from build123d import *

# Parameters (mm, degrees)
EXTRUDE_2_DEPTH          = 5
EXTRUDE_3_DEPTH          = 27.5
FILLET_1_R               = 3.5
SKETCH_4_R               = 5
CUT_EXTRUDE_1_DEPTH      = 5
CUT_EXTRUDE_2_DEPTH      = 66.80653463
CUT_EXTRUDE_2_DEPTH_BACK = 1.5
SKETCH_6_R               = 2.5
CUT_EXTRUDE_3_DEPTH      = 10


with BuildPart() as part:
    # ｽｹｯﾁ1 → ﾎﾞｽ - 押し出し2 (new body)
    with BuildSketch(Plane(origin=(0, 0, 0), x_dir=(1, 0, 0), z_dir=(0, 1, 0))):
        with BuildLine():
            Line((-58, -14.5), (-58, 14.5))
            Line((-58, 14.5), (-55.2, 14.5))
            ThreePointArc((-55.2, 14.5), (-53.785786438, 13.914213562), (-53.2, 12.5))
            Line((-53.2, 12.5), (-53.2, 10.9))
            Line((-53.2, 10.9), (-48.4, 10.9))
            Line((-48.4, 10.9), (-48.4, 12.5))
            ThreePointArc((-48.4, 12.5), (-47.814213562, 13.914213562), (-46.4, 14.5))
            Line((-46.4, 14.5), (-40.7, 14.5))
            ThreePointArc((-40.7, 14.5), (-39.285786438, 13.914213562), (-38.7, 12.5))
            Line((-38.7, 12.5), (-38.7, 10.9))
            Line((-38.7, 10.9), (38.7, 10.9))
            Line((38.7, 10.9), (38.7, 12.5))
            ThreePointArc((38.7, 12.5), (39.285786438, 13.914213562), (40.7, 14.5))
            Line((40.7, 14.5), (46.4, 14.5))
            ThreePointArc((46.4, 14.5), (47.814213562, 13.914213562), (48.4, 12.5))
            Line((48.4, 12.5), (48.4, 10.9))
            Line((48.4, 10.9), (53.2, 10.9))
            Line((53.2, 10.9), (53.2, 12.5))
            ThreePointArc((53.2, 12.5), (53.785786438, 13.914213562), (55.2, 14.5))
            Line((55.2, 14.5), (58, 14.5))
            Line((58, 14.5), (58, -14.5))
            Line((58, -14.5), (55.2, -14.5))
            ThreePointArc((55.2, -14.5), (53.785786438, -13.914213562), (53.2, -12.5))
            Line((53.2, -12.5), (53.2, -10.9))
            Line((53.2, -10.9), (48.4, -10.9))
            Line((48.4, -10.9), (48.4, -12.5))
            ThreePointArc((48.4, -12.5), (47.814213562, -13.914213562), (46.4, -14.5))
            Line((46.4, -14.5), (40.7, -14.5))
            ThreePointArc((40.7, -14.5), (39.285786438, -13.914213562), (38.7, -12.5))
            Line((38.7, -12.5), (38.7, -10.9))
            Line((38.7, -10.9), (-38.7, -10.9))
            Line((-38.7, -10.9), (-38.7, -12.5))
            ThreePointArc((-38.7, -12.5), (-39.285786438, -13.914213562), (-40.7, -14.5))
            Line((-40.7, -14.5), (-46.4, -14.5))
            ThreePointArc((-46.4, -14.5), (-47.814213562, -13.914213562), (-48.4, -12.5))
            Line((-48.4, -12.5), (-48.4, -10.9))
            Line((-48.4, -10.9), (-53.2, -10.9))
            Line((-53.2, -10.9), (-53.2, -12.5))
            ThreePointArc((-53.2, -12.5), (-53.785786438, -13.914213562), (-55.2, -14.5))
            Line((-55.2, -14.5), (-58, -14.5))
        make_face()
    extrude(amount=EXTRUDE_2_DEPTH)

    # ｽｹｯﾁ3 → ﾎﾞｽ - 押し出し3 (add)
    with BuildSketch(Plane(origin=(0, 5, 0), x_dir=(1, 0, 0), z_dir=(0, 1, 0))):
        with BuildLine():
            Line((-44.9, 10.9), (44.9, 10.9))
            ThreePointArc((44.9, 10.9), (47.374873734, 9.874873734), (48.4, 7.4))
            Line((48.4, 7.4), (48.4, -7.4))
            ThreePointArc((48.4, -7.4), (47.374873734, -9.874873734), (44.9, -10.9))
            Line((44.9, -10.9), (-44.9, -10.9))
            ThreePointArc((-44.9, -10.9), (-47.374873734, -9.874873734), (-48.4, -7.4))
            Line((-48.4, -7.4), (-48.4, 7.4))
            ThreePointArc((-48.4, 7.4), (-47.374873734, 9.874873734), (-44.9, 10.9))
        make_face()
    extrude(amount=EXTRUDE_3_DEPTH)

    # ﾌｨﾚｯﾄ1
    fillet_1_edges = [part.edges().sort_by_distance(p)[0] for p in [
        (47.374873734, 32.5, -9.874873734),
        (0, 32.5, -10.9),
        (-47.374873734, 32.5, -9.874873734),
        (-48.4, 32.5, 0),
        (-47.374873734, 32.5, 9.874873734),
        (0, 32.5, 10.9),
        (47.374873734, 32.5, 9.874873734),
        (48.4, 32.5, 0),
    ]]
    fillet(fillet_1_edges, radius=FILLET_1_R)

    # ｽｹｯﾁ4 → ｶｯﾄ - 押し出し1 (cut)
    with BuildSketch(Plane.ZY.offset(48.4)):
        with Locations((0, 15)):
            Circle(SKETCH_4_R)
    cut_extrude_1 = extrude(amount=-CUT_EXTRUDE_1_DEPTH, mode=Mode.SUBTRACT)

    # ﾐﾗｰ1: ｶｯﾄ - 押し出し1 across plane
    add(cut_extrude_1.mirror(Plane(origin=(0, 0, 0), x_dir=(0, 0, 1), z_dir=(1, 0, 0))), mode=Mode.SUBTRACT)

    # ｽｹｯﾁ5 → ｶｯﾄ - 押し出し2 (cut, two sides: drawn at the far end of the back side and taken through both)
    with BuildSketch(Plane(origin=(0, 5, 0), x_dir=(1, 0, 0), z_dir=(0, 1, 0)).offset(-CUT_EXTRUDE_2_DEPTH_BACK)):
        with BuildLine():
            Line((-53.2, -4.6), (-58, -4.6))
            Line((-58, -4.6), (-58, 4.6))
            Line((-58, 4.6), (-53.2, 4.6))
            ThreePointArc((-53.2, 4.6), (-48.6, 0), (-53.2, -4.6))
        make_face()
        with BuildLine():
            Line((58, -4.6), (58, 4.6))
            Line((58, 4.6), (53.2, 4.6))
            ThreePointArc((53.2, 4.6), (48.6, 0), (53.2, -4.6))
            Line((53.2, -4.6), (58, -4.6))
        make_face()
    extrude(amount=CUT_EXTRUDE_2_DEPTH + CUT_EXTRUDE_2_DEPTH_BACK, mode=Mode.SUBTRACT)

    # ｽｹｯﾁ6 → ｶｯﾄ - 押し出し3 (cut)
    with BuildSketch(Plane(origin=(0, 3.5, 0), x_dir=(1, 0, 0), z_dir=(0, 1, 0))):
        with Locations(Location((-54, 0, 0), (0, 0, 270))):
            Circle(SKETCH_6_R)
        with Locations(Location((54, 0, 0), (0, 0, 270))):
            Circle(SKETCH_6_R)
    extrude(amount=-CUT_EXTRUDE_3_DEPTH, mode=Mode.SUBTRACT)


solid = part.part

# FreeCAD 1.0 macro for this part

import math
import FreeCAD as App
import Part
import Sketcher

V = App.Vector


def edges_at(feature, points):
    """Names of the edges that pass closest to the given points."""
    edges = feature.Shape.Edges
    near = lambda p: min(range(len(edges)), key=lambda i: edges[i].distToShape(Part.Vertex(*p))[0])
    return sorted({f"Edge{near(p) + 1}" for p in points})

doc = App.newDocument("Part")
body = doc.addObject("PartDesign::Body", "Body")

sketch1 = body.newObject("Sketcher::SketchObject", "Sketch")
sketch1.AttachmentSupport = (doc.getObject("XZ_Plane"), [""])
sketch1.MapMode = "FlatFace"
sketch1.addGeometry([
    Part.LineSegment(V(-58, -14.5, 0), V(-58, 14.5, 0)),
    Part.LineSegment(V(-58, 14.5, 0), V(-55.2, 14.5, 0)),
    Part.ArcOfCircle(Part.Circle(V(-55.2, 12.5, 0), V(0, 0, 1), 2), math.radians(0), math.radians(90)),
    Part.LineSegment(V(-53.2, 12.5, 0), V(-53.2, 10.9, 0)),
    Part.LineSegment(V(-53.2, 10.9, 0), V(-48.4, 10.9, 0)),
    Part.LineSegment(V(-48.4, 10.9, 0), V(-48.4, 12.5, 0)),
    Part.ArcOfCircle(Part.Circle(V(-46.4, 12.5, 0), V(0, 0, 1), 2), math.radians(90), math.radians(180)),
    Part.LineSegment(V(-46.4, 14.5, 0), V(-40.7, 14.5, 0)),
    Part.ArcOfCircle(Part.Circle(V(-40.7, 12.5, 0), V(0, 0, 1), 2), math.radians(0), math.radians(90)),
    Part.LineSegment(V(-38.7, 12.5, 0), V(-38.7, 10.9, 0)),
    Part.LineSegment(V(-38.7, 10.9, 0), V(38.7, 10.9, 0)),
    Part.LineSegment(V(38.7, 10.9, 0), V(38.7, 12.5, 0)),
    Part.ArcOfCircle(Part.Circle(V(40.7, 12.5, 0), V(0, 0, 1), 2), math.radians(90), math.radians(180)),
    Part.LineSegment(V(40.7, 14.5, 0), V(46.4, 14.5, 0)),
    Part.ArcOfCircle(Part.Circle(V(46.4, 12.5, 0), V(0, 0, 1), 2), math.radians(0), math.radians(90)),
    Part.LineSegment(V(48.4, 12.5, 0), V(48.4, 10.9, 0)),
    Part.LineSegment(V(48.4, 10.9, 0), V(53.2, 10.9, 0)),
    Part.LineSegment(V(53.2, 10.9, 0), V(53.2, 12.5, 0)),
    Part.ArcOfCircle(Part.Circle(V(55.2, 12.5, 0), V(0, 0, 1), 2), math.radians(90), math.radians(180)),
    Part.LineSegment(V(55.2, 14.5, 0), V(58, 14.5, 0)),
    Part.LineSegment(V(58, 14.5, 0), V(58, -14.5, 0)),
    Part.LineSegment(V(58, -14.5, 0), V(55.2, -14.5, 0)),
    Part.ArcOfCircle(Part.Circle(V(55.2, -12.5, 0), V(0, 0, 1), 2), math.radians(-180), math.radians(-90)),
    Part.LineSegment(V(53.2, -12.5, 0), V(53.2, -10.9, 0)),
    Part.LineSegment(V(53.2, -10.9, 0), V(48.4, -10.9, 0)),
    Part.LineSegment(V(48.4, -10.9, 0), V(48.4, -12.5, 0)),
    Part.ArcOfCircle(Part.Circle(V(46.4, -12.5, 0), V(0, 0, 1), 2), math.radians(-90), math.radians(0)),
    Part.LineSegment(V(46.4, -14.5, 0), V(40.7, -14.5, 0)),
    Part.ArcOfCircle(Part.Circle(V(40.7, -12.5, 0), V(0, 0, 1), 2), math.radians(-180), math.radians(-90)),
    Part.LineSegment(V(38.7, -12.5, 0), V(38.7, -10.9, 0)),
    Part.LineSegment(V(38.7, -10.9, 0), V(-38.7, -10.9, 0)),
    Part.LineSegment(V(-38.7, -10.9, 0), V(-38.7, -12.5, 0)),
    Part.ArcOfCircle(Part.Circle(V(-40.7, -12.5, 0), V(0, 0, 1), 2), math.radians(-90), math.radians(0)),
    Part.LineSegment(V(-40.7, -14.5, 0), V(-46.4, -14.5, 0)),
    Part.ArcOfCircle(Part.Circle(V(-46.4, -12.5, 0), V(0, 0, 1), 2), math.radians(-180), math.radians(-90)),
    Part.LineSegment(V(-48.4, -12.5, 0), V(-48.4, -10.9, 0)),
    Part.LineSegment(V(-48.4, -10.9, 0), V(-53.2, -10.9, 0)),
    Part.LineSegment(V(-53.2, -10.9, 0), V(-53.2, -12.5, 0)),
    Part.ArcOfCircle(Part.Circle(V(-55.2, -12.5, 0), V(0, 0, 1), 2), math.radians(-90), math.radians(0)),
    Part.LineSegment(V(-55.2, -14.5, 0), V(-58, -14.5, 0)),
], False)
sketch1.addConstraint([
    Sketcher.Constraint("Coincident", 0, 2, 1, 1),
    Sketcher.Constraint("Tangent", 1, 2, 2, 2),
    Sketcher.Constraint("Tangent", 2, 1, 3, 1),
    Sketcher.Constraint("Coincident", 3, 2, 4, 1),
    Sketcher.Constraint("Coincident", 4, 2, 5, 1),
    Sketcher.Constraint("Tangent", 5, 2, 6, 2),
    Sketcher.Constraint("Tangent", 6, 1, 7, 1),
    Sketcher.Constraint("Tangent", 7, 2, 8, 2),
    Sketcher.Constraint("Tangent", 8, 1, 9, 1),
    Sketcher.Constraint("Coincident", 9, 2, 10, 1),
    Sketcher.Constraint("Coincident", 10, 2, 11, 1),
    Sketcher.Constraint("Tangent", 11, 2, 12, 2),
    Sketcher.Constraint("Tangent", 12, 1, 13, 1),
    Sketcher.Constraint("Tangent", 13, 2, 14, 2),
    Sketcher.Constraint("Tangent", 14, 1, 15, 1),
    Sketcher.Constraint("Coincident", 15, 2, 16, 1),
    Sketcher.Constraint("Coincident", 16, 2, 17, 1),
    Sketcher.Constraint("Tangent", 17, 2, 18, 2),
    Sketcher.Constraint("Tangent", 18, 1, 19, 1),
    Sketcher.Constraint("Coincident", 19, 2, 20, 1),
    Sketcher.Constraint("Coincident", 20, 2, 21, 1),
    Sketcher.Constraint("Tangent", 21, 2, 22, 2),
    Sketcher.Constraint("Tangent", 22, 1, 23, 1),
    Sketcher.Constraint("Coincident", 23, 2, 24, 1),
    Sketcher.Constraint("Coincident", 24, 2, 25, 1),
    Sketcher.Constraint("Tangent", 25, 2, 26, 2),
    Sketcher.Constraint("Tangent", 26, 1, 27, 1),
    Sketcher.Constraint("Tangent", 27, 2, 28, 2),
    Sketcher.Constraint("Tangent", 28, 1, 29, 1),
    Sketcher.Constraint("Coincident", 29, 2, 30, 1),
    Sketcher.Constraint("Coincident", 30, 2, 31, 1),
    Sketcher.Constraint("Tangent", 31, 2, 32, 2),
    Sketcher.Constraint("Tangent", 32, 1, 33, 1),
    Sketcher.Constraint("Tangent", 33, 2, 34, 2),
    Sketcher.Constraint("Tangent", 34, 1, 35, 1),
    Sketcher.Constraint("Coincident", 35, 2, 36, 1),
    Sketcher.Constraint("Coincident", 36, 2, 37, 1),
    Sketcher.Constraint("Tangent", 37, 2, 38, 2),
    Sketcher.Constraint("Tangent", 38, 1, 39, 1),
    Sketcher.Constraint("Coincident", 39, 2, 0, 1),
    Sketcher.Constraint("Vertical", 0),
    Sketcher.Constraint("Horizontal", 1),
    Sketcher.Constraint("Vertical", 3),
    Sketcher.Constraint("Horizontal", 4),
    Sketcher.Constraint("Vertical", 5),
    Sketcher.Constraint("Horizontal", 7),
    Sketcher.Constraint("Vertical", 9),
    Sketcher.Constraint("Horizontal", 10),
    Sketcher.Constraint("Vertical", 11),
    Sketcher.Constraint("Horizontal", 13),
    Sketcher.Constraint("Vertical", 15),
    Sketcher.Constraint("Horizontal", 16),
    Sketcher.Constraint("Vertical", 17),
    Sketcher.Constraint("Horizontal", 19),
    Sketcher.Constraint("Vertical", 20),
    Sketcher.Constraint("Horizontal", 21),
    Sketcher.Constraint("Vertical", 23),
    Sketcher.Constraint("Horizontal", 24),
    Sketcher.Constraint("Vertical", 25),
    Sketcher.Constraint("Horizontal", 27),
    Sketcher.Constraint("Vertical", 29),
    Sketcher.Constraint("Horizontal", 30),
    Sketcher.Constraint("Vertical", 31),
    Sketcher.Constraint("Horizontal", 33),
    Sketcher.Constraint("Vertical", 35),
    Sketcher.Constraint("Horizontal", 36),
    Sketcher.Constraint("Vertical", 37),
    Sketcher.Constraint("Horizontal", 39),
    Sketcher.Constraint("Equal", 2, 6),
    Sketcher.Constraint("Equal", 6, 8),
    Sketcher.Constraint("Equal", 8, 12),
    Sketcher.Constraint("Equal", 12, 14),
    Sketcher.Constraint("Equal", 14, 18),
    Sketcher.Constraint("Equal", 18, 22),
    Sketcher.Constraint("Equal", 22, 26),
    Sketcher.Constraint("Equal", 26, 28),
    Sketcher.Constraint("Equal", 28, 32),
    Sketcher.Constraint("Equal", 32, 34),
    Sketcher.Constraint("Equal", 34, 38),
    Sketcher.Constraint("Symmetric", 2, 3, 22, 3, -1, 1),
    Sketcher.Constraint("Symmetric", 6, 3, 26, 3, -1, 1),
    Sketcher.Constraint("Symmetric", 12, 3, 32, 3, -1, 1),
    Sketcher.Constraint("Symmetric", 18, 3, 38, 3, -1, 1),
    Sketcher.Constraint("Symmetric", 9, 2, 29, 2, -1, 1),
    Sketcher.Constraint("Symmetric", 15, 2, 35, 2, -1, 1),
    Sketcher.Constraint("Symmetric", 8, 3, 12, 3, -2),
    Sketcher.Constraint("Symmetric", 2, 3, 18, 3, -2),
    Sketcher.Constraint("Symmetric", 4, 2, 15, 2, -2),
    Sketcher.Constraint("Horizontal", 2, 3, 6, 3),
    Sketcher.Constraint("Horizontal", 4, 2, 9, 2),
    Sketcher.Constraint("Horizontal", 24, 2, 29, 2),
    Sketcher.Constraint("Equal", 1, 19),
    Sketcher.Constraint("Radius", 2, 2.0),
    Sketcher.Constraint("DistanceY", 0, 1, 0, 2, 29.0),
    Sketcher.Constraint("DistanceX", 1, 1, 1, 2, 2.8),
    Sketcher.Constraint("DistanceX", 4, 1, 4, 2, 4.8),
    Sketcher.Constraint("DistanceX", 7, 1, 7, 2, 5.7),
    Sketcher.Constraint("DistanceX", 10, 1, 10, 2, 77.4),
    Sketcher.Constraint("DistanceY", 3, 2, 3, 1, 1.6),
])
pad1 = body.newObject("PartDesign::Pad", "Pad")
pad1.Profile = sketch1
pad1.Length = 5
pad1.Reversed = True

sketch2 = body.newObject("Sketcher::SketchObject", "Sketch001")
sketch2.AttachmentSupport = (doc.getObject("XZ_Plane"), [""])
sketch2.MapMode = "FlatFace"
sketch2.AttachmentOffset = App.Placement(V(0, 0, -5), App.Rotation())
sketch2.addGeometry([
    Part.LineSegment(V(44.9, -10.9, 0), V(-44.9, -10.9, 0)),
    Part.ArcOfCircle(Part.Circle(V(-44.9, -7.4, 0), V(0, 0, 1), 3.5), math.radians(-180), math.radians(-90)),
    Part.LineSegment(V(-48.4, -7.4, 0), V(-48.4, 7.4, 0)),
    Part.ArcOfCircle(Part.Circle(V(-44.9, 7.4, 0), V(0, 0, 1), 3.5), math.radians(90), math.radians(180)),
    Part.LineSegment(V(-44.9, 10.9, 0), V(44.9, 10.9, 0)),
    Part.ArcOfCircle(Part.Circle(V(44.9, 7.4, 0), V(0, 0, 1), 3.5), math.radians(0), math.radians(90)),
    Part.LineSegment(V(48.4, 7.4, 0), V(48.4, -7.4, 0)),
    Part.ArcOfCircle(Part.Circle(V(44.9, -7.4, 0), V(0, 0, 1), 3.5), math.radians(-90), math.radians(0)),
], False)
sketch2.addConstraint([
    Sketcher.Constraint("Tangent", 0, 2, 1, 2),
    Sketcher.Constraint("Tangent", 1, 1, 2, 1),
    Sketcher.Constraint("Tangent", 2, 2, 3, 2),
    Sketcher.Constraint("Tangent", 3, 1, 4, 1),
    Sketcher.Constraint("Tangent", 4, 2, 5, 2),
    Sketcher.Constraint("Tangent", 5, 1, 6, 1),
    Sketcher.Constraint("Tangent", 6, 2, 7, 2),
    Sketcher.Constraint("Tangent", 7, 1, 0, 1),
    Sketcher.Constraint("Horizontal", 0),
    Sketcher.Constraint("Vertical", 2),
    Sketcher.Constraint("Horizontal", 4),
    Sketcher.Constraint("Vertical", 6),
    Sketcher.Constraint("Equal", 1, 3),
    Sketcher.Constraint("Equal", 3, 5),
    Sketcher.Constraint("Equal", 5, 7),
    Sketcher.Constraint("Symmetric", 1, 3, 5, 3, -1, 1),
    Sketcher.Constraint("Radius", 1, 3.5),
    Sketcher.Constraint("DistanceX", 0, 2, 0, 1, 89.8),
    Sketcher.Constraint("DistanceY", 2, 1, 2, 2, 14.8),
])
pad2 = body.newObject("PartDesign::Pad", "Pad001")
pad2.Profile = sketch2
pad2.Length = 27.5
pad2.Reversed = True
doc.recompute()

fillet = body.newObject("PartDesign::Fillet", "Fillet")
fillet.Base = (pad2, edges_at(pad2, [
    (47.375, 32.5, -9.875),
    (0, 32.5, -10.9),
    (-47.375, 32.5, -9.875),
    (-48.4, 32.5, 0),
    (-47.375, 32.5, 9.875),
    (0, 32.5, 10.9),
    (47.375, 32.5, 9.875),
    (48.4, 32.5, 0),
]))
fillet.Radius = 3.5

sketch3 = body.newObject("Sketcher::SketchObject", "Sketch002")
sketch3.AttachmentSupport = (doc.getObject("YZ_Plane"), [""])
sketch3.MapMode = "FlatFace"
sketch3.AttachmentOffset = App.Placement(V(0, 0, -48.4), App.Rotation())
sketch3.addGeometry(Part.Circle(V(15, 0, 0), V(0, 0, 1), 5), False)
sketch3.addConstraint([
    Sketcher.Constraint("PointOnObject", 0, 3, -1),
    Sketcher.Constraint("Diameter", 0, 10.0),
    Sketcher.Constraint("DistanceX", -1, 1, 0, 3, 15.0),
])
pocket1 = body.newObject("PartDesign::Pocket", "Pocket")
pocket1.Profile = sketch3
pocket1.Length = 5
pocket1.Reversed = True
doc.recompute()

mirrored = body.newObject("PartDesign::Mirrored", "Mirrored")
mirrored.Originals = [pocket1]
mirrored.MirrorPlane = (doc.getObject("YZ_Plane"), [""])
body.Tip = mirrored

sketch4 = body.newObject("Sketcher::SketchObject", "Sketch003")
sketch4.AttachmentSupport = (doc.getObject("XZ_Plane"), [""])
sketch4.MapMode = "FlatFace"
sketch4.AttachmentOffset = App.Placement(V(0, 0, -5), App.Rotation())
sketch4.addGeometry([
    Part.LineSegment(V(-58, 4.6, 0), V(-53.2, 4.6, 0)),
    Part.ArcOfCircle(Part.Circle(V(-53.2, 0, 0), V(0, 0, 1), 4.6), math.radians(-90), math.radians(90)),
    Part.LineSegment(V(-53.2, -4.6, 0), V(-58, -4.6, 0)),
    Part.LineSegment(V(-58, -4.6, 0), V(-58, 4.6, 0)),
    Part.LineSegment(V(58, 4.6, 0), V(58, -4.6, 0)),
    Part.LineSegment(V(58, -4.6, 0), V(53.2, -4.6, 0)),
    Part.ArcOfCircle(Part.Circle(V(53.2, 0, 0), V(0, 0, 1), 4.6), math.radians(90), math.radians(270)),
    Part.LineSegment(V(53.2, 4.6, 0), V(58, 4.6, 0)),
], False)
sketch4.addConstraint([
    Sketcher.Constraint("Tangent", 0, 2, 1, 2),
    Sketcher.Constraint("Tangent", 1, 1, 2, 1),
    Sketcher.Constraint("Coincident", 2, 2, 3, 1),
    Sketcher.Constraint("Coincident", 3, 2, 0, 1),
    Sketcher.Constraint("Coincident", 4, 2, 5, 1),
    Sketcher.Constraint("Tangent", 5, 2, 6, 2),
    Sketcher.Constraint("Tangent", 6, 1, 7, 1),
    Sketcher.Constraint("Coincident", 7, 2, 4, 1),
    Sketcher.Constraint("Horizontal", 0),
    Sketcher.Constraint("Horizontal", 2),
    Sketcher.Constraint("Vertical", 3),
    Sketcher.Constraint("Vertical", 4),
    Sketcher.Constraint("Horizontal", 5),
    Sketcher.Constraint("Horizontal", 7),
    Sketcher.Constraint("Equal", 1, 6),
    Sketcher.Constraint("Symmetric", 1, 3, 6, 3, -1, 1),
    Sketcher.Constraint("Symmetric", 2, 2, 4, 2, -2),
    Sketcher.Constraint("Radius", 1, 4.6),
    Sketcher.Constraint("DistanceX", 0, 1, 0, 2, 4.8),
    Sketcher.Constraint("DistanceX", 2, 2, -1, 1, 58.0),
])
pocket2 = body.newObject("PartDesign::Pocket", "Pocket001")
pocket2.Profile = sketch4
pocket2.Type = "TwoLengths"
pocket2.Length = 66.806535
pocket2.Length2 = 1.5

sketch5 = body.newObject("Sketcher::SketchObject", "Sketch004")
sketch5.AttachmentSupport = (doc.getObject("XZ_Plane"), [""])
sketch5.MapMode = "FlatFace"
sketch5.AttachmentOffset = App.Placement(V(0, 0, -3.5), App.Rotation())
sketch5.addGeometry([
    Part.Circle(V(-54, 0, 0), V(0, 0, 1), 2.5),
    Part.Circle(V(54, 0, 0), V(0, 0, 1), 2.5),
], False)
sketch5.addConstraint([
    Sketcher.Constraint("Equal", 0, 1),
    Sketcher.Constraint("Symmetric", 0, 3, 1, 3, -1, 1),
    Sketcher.Constraint("PointOnObject", 0, 3, -1),
    Sketcher.Constraint("Diameter", 0, 5.0),
    Sketcher.Constraint("DistanceX", 0, 3, -1, 1, 54.0),
])
pocket3 = body.newObject("PartDesign::Pocket", "Pocket002")
pocket3.Profile = sketch5
pocket3.Length = 10
pocket3.Reversed = True

doc.recompute()
